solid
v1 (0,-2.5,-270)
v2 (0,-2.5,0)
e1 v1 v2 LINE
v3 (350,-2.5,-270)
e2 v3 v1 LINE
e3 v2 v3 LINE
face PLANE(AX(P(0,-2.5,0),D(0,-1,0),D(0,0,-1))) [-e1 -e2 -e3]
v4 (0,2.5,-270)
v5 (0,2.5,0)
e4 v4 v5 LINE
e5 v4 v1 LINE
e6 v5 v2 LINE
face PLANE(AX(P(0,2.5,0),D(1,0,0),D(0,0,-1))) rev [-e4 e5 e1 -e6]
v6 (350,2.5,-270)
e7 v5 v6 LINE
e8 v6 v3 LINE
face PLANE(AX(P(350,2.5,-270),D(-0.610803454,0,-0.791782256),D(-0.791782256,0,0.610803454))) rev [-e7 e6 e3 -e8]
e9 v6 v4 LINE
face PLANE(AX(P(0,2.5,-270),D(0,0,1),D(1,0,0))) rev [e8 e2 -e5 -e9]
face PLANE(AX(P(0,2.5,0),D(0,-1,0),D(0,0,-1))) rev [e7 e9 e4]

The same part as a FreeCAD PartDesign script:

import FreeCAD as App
import Part
import Sketcher
Q = App.Units.Quantity

doc = App.newDocument("Part")
params = doc.addObject("Spreadsheet::Sheet", "Params")
for row, (alias, value) in enumerate([
    ("sketch1_width", "350 mm"),
    ("sketch1_height", "270 mm"),
    ("pad1_length", "5 mm"),
], start=1):
    params.set(f"A{row}", alias)
    params.set(f"B{row}", "=" + value)
    params.setAlias(f"B{row}", alias)

body = doc.addObject("PartDesign::Body", "Body")

# Sketch on XZ plane
sketch1 = body.newObject("Sketcher::SketchObject", "Sketch")
sketch1.AttachmentSupport = (doc.getObject("XZ_Plane"), [""])
sketch1.MapMode = "FlatFace"
sketch1.addGeometry(Part.LineSegment(App.Vector(0, -270, 0), App.Vector(0, 0, 0)), False)
sketch1.addGeometry(Part.LineSegment(App.Vector(0, 0, 0), App.Vector(350, -270, 0)), False)
sketch1.addGeometry(Part.LineSegment(App.Vector(350, -270, 0), App.Vector(0, -270, 0)), False)
sketch1.addConstraint(Sketcher.Constraint("Coincident", 0, 2, 1, 1))
sketch1.addConstraint(Sketcher.Constraint("Coincident", 1, 2, 2, 1))
sketch1.addConstraint(Sketcher.Constraint("Coincident", 2, 2, 0, 1))
sketch1.addConstraint(Sketcher.Constraint("Vertical", 0))
sketch1.addConstraint(Sketcher.Constraint("Horizontal", 2))
sketch1.addConstraint(Sketcher.Constraint("Coincident", 0, 2, -1, 1))
sketch1.addConstraint(Sketcher.Constraint("DistanceX", 2, 2, 2, 1, Q("350 mm")))
sketch1.addConstraint(Sketcher.Constraint("DistanceY", 0, 1, 0, 2, Q("270 mm")))
sketch1.setExpression("Constraints[6]", "Params.sketch1_width")
sketch1.setExpression("Constraints[7]", "Params.sketch1_height")
pad1 = body.newObject("PartDesign::Pad", "Pad")
pad1.Profile = sketch1
pad1.setExpression("Length", "Params.pad1_length")
pad1.Midplane = True

doc.recompute()
